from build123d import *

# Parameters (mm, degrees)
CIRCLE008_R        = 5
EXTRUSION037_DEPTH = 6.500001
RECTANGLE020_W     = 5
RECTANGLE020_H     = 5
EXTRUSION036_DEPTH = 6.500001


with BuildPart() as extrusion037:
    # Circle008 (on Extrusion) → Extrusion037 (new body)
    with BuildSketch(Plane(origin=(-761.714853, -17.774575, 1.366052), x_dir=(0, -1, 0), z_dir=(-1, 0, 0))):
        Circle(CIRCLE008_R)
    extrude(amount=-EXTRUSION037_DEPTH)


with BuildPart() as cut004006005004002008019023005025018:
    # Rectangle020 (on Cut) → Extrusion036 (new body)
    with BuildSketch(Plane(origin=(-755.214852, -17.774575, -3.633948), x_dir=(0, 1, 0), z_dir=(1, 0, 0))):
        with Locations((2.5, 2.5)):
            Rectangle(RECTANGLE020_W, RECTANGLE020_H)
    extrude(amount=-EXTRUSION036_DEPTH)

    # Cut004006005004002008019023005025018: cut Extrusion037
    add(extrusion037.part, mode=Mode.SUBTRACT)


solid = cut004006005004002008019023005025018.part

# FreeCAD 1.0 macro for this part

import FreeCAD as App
import Part
import Sketcher

doc = App.newDocument("Part")
body = doc.addObject("PartDesign::Body", "Body")

# Sketch on YZ plane
sketch1 = body.newObject("Sketcher::SketchObject", "Sketch")
sketch1.AttachmentSupport = (doc.getObject("YZ_Plane"), [""])
sketch1.MapMode = "FlatFace"
sketch1.AttachmentOffset = App.Placement(App.Vector(0, 0, -761.714853), App.Rotation())
sketch1.addGeometry(Part.Circle(App.Vector(-18, 1, 0), App.Vector(0, 0, 1), 5), False)
sketch1.addConstraint(Sketcher.Constraint("Diameter", 0, 10.0))
sketch1.addConstraint(Sketcher.Constraint("DistanceX", 0, 3, -1, 1, 17.774575))
sketch1.addConstraint(Sketcher.Constraint("DistanceY", -1, 1, 0, 3, 1.366052))
pad1 = body.newObject("PartDesign::Pad", "Pad")
pad1.Profile = sketch1
pad1.Length = 6.500001
body2 = doc.addObject("PartDesign::Body", "Body001")

# Sketch on YZ plane
sketch2 = body2.newObject("Sketcher::SketchObject", "Sketch001")
sketch2.AttachmentSupport = (doc.getObject("YZ_Plane001"), [""])
sketch2.MapMode = "FlatFace"
sketch2.AttachmentOffset = App.Placement(App.Vector(0, 0, -755.214852), App.Rotation())
sketch2.addGeometry(Part.LineSegment(App.Vector(-17.8, 1.4, 0), App.Vector(-17.8, -3.6, 0)), False)
sketch2.addGeometry(Part.LineSegment(App.Vector(-17.8, -3.6, 0), App.Vector(-12.8, -3.6, 0)), False)
sketch2.addGeometry(Part.LineSegment(App.Vector(-12.8, -3.6, 0), App.Vector(-12.8, 1.4, 0)), False)
sketch2.addGeometry(Part.LineSegment(App.Vector(-12.8, 1.4, 0), App.Vector(-17.8, 1.4, 0)), False)
sketch2.addConstraint(Sketcher.Constraint("Coincident", 0, 2, 1, 1))
sketch2.addConstraint(Sketcher.Constraint("Coincident", 1, 2, 2, 1))
sketch2.addConstraint(Sketcher.Constraint("Coincident", 2, 2, 3, 1))
sketch2.addConstraint(Sketcher.Constraint("Coincident", 3, 2, 0, 1))
sketch2.addConstraint(Sketcher.Constraint("Vertical", 0))
sketch2.addConstraint(Sketcher.Constraint("Horizontal", 1))
sketch2.addConstraint(Sketcher.Constraint("Vertical", 2))
sketch2.addConstraint(Sketcher.Constraint("Horizontal", 3))
sketch2.addConstraint(Sketcher.Constraint("Equal", 3, 0))
sketch2.addConstraint(Sketcher.Constraint("DistanceX", 1, 1, 1, 2, 5.0))
sketch2.addConstraint(Sketcher.Constraint("DistanceY", 0, 2, -1, 1, 3.633948))
sketch2.addConstraint(Sketcher.Constraint("DistanceX", 0, 2, -1, 1, 17.774575))
pad2 = body2.newObject("PartDesign::Pad", "Pad001")
pad2.Profile = sketch2
pad2.Length = 6.500001
pad2.Reversed = True
doc.recompute()

boolean = body2.newObject("PartDesign::Boolean", "Boolean")
boolean.Type = "Cut"
boolean.addObjects([body])

doc.recompute()
